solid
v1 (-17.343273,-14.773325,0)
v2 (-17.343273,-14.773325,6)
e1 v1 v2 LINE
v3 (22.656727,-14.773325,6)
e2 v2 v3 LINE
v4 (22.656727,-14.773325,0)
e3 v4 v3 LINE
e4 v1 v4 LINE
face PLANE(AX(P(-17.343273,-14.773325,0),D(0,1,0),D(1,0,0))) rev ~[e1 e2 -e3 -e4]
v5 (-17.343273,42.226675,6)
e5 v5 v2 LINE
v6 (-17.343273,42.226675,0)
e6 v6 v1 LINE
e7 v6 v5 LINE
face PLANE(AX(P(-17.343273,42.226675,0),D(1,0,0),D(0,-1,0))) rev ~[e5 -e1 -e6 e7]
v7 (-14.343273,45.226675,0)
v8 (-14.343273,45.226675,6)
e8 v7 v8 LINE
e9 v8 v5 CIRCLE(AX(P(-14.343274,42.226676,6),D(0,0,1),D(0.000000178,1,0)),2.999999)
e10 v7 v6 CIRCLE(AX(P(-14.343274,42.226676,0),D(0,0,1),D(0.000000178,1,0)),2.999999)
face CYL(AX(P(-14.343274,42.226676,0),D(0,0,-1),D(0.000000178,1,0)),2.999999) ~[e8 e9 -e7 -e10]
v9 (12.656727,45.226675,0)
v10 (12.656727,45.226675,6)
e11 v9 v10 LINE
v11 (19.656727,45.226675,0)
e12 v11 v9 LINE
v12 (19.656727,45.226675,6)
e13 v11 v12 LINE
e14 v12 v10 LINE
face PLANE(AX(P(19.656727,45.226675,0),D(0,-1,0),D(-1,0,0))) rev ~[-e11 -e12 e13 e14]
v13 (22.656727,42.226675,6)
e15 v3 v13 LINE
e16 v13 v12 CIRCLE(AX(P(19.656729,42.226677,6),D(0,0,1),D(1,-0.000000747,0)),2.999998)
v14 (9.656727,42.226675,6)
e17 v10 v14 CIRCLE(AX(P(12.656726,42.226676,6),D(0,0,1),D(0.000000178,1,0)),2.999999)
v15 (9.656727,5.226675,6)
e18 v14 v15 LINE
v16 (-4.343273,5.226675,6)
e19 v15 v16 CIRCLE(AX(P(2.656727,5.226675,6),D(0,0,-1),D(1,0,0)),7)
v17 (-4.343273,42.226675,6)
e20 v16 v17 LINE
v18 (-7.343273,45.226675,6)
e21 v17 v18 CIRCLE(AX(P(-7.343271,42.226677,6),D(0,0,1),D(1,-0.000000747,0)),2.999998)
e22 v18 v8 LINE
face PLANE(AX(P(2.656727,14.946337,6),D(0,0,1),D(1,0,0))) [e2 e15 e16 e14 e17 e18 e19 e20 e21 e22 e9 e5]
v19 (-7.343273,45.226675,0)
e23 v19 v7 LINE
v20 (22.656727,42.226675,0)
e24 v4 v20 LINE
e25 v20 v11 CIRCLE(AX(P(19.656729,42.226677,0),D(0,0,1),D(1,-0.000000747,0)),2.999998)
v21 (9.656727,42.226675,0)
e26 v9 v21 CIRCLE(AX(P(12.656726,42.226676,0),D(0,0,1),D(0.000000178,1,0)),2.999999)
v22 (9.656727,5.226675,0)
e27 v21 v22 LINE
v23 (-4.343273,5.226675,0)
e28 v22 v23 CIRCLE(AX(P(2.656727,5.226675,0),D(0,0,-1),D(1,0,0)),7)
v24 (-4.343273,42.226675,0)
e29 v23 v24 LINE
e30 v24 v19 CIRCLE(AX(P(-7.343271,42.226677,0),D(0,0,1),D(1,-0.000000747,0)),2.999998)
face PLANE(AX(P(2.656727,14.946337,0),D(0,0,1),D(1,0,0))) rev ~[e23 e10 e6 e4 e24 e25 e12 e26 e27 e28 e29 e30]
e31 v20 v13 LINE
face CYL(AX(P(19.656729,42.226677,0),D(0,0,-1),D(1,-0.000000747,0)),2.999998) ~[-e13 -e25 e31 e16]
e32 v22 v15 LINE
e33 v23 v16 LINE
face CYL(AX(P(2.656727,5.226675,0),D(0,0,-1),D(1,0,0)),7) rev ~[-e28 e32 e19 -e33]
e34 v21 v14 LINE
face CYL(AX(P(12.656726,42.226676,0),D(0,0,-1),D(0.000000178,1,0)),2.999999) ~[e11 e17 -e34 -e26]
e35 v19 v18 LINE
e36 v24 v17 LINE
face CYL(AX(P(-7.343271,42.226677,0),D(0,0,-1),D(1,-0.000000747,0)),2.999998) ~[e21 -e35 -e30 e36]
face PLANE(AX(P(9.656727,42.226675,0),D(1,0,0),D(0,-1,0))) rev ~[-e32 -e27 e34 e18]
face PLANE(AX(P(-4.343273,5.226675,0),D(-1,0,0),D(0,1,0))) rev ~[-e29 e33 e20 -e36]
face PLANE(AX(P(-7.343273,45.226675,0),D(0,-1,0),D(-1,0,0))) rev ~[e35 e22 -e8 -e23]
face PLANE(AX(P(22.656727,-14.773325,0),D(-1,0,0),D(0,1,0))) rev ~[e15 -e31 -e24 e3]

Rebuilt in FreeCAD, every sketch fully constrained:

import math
import FreeCAD as App
import Part
import Sketcher
from FreeCAD import Vector
Q = App.Units.Quantity

doc = App.newDocument("Part")
body = doc.addObject("PartDesign::Body", "Body")

# Sketch on XY plane
sketch1 = doc.addObject("Sketcher::SketchObject", "Sketch")
body.addObject(sketch1)
sketch1.AttachmentSupport = (doc.XY_Plane, [""])
sketch1.MapMode = "FlatFace"
sketch1.addGeometry(Part.LineSegment(Vector(-17.3, -14.8, 0), Vector(22.7, -14.8, 0)), False)
sketch1.addGeometry(Part.LineSegment(Vector(22.7, -14.8, 0), Vector(22.7, 42.2, 0)), False)
sketch1.addGeometry(Part.ArcOfCircle(Part.Circle(Vector(19.7, 42.2, 0), Vector(0, 0, 1), 3), math.radians(0), math.radians(90)), False)
sketch1.addGeometry(Part.LineSegment(Vector(19.7, 45.2, 0), Vector(12.7, 45.2, 0)), False)
sketch1.addGeometry(Part.ArcOfCircle(Part.Circle(Vector(12.7, 42.2, 0), Vector(0, 0, 1), 3), math.radians(90), math.radians(180)), False)
sketch1.addGeometry(Part.LineSegment(Vector(9.7, 42.2, 0), Vector(9.7, 5.2, 0)), False)
sketch1.addGeometry(Part.ArcOfCircle(Part.Circle(Vector(2.7, 5.2, 0), Vector(0, 0, 1), 7), math.radians(180), math.radians(360)), False)
sketch1.addGeometry(Part.LineSegment(Vector(-4.3, 5.2, 0), Vector(-4.3, 42.2, 0)), False)
sketch1.addGeometry(Part.ArcOfCircle(Part.Circle(Vector(-7.3, 42.2, 0), Vector(0, 0, 1), 3), math.radians(0), math.radians(90)), False)
sketch1.addGeometry(Part.LineSegment(Vector(-7.3, 45.2, 0), Vector(-14.3, 45.2, 0)), False)
sketch1.addGeometry(Part.ArcOfCircle(Part.Circle(Vector(-14.3, 42.2, 0), Vector(0, 0, 1), 3), math.radians(90), math.radians(180)), False)
sketch1.addGeometry(Part.LineSegment(Vector(-17.3, 42.2, 0), Vector(-17.3, -14.8, 0)), False)
sketch1.addConstraint(Sketcher.Constraint("Coincident", 0, 2, 1, 1))
sketch1.addConstraint(Sketcher.Constraint("Tangent", 1, 2, 2, 1))
sketch1.addConstraint(Sketcher.Constraint("Tangent", 2, 2, 3, 1))
sketch1.addConstraint(Sketcher.Constraint("Tangent", 3, 2, 4, 1))
sketch1.addConstraint(Sketcher.Constraint("Tangent", 4, 2, 5, 1))
sketch1.addConstraint(Sketcher.Constraint("Tangent", 5, 2, 6, 2))
sketch1.addConstraint(Sketcher.Constraint("Tangent", 6, 1, 7, 1))
sketch1.addConstraint(Sketcher.Constraint("Tangent", 7, 2, 8, 1))
sketch1.addConstraint(Sketcher.Constraint("Tangent", 8, 2, 9, 1))
sketch1.addConstraint(Sketcher.Constraint("Tangent", 9, 2, 10, 1))
sketch1.addConstraint(Sketcher.Constraint("Tangent", 10, 2, 11, 1))
sketch1.addConstraint(Sketcher.Constraint("Coincident", 11, 2, 0, 1))
sketch1.addConstraint(Sketcher.Constraint("Horizontal", 0))
sketch1.addConstraint(Sketcher.Constraint("Vertical", 1))
sketch1.addConstraint(Sketcher.Constraint("Horizontal", 3))
sketch1.addConstraint(Sketcher.Constraint("Vertical", 5))
sketch1.addConstraint(Sketcher.Constraint("Vertical", 7))
sketch1.addConstraint(Sketcher.Constraint("Horizontal", 9))
sketch1.addConstraint(Sketcher.Constraint("Vertical", 11))
sketch1.addConstraint(Sketcher.Constraint("Equal", 2, 4))
sketch1.addConstraint(Sketcher.Constraint("Equal", 4, 8))
sketch1.addConstraint(Sketcher.Constraint("Equal", 8, 10))
sketch1.addConstraint(Sketcher.Constraint("Horizontal", 4, 3, 8, 3))
sketch1.addConstraint(Sketcher.Constraint("Equal", 3, 9))
sketch1.addConstraint(Sketcher.Constraint("Radius", 4, Q("2.999999 mm")))
sketch1.addConstraint(Sketcher.Constraint("Radius", 6, Q("7 mm")))
sketch1.addConstraint(Sketcher.Constraint("DistanceX", 0, 1, 0, 2, Q("40 mm")))
sketch1.addConstraint(Sketcher.Constraint("DistanceY", 1, 1, 1, 2, Q("57 mm")))
sketch1.addConstraint(Sketcher.Constraint("DistanceY", 5, 2, 5, 1, Q("37 mm")))
sketch1.addConstraint(Sketcher.Constraint("DistanceX", -1, 1, 2, 3, Q("19.656729 mm")))
sketch1.addConstraint(Sketcher.Constraint("DistanceY", -1, 1, 2, 3, Q("42.226677 mm")))
pad1 = doc.addObject("PartDesign::Pad", "Pad")
body.addObject(pad1)
pad1.Profile = sketch1
pad1.Length = 6

doc.recompute()
